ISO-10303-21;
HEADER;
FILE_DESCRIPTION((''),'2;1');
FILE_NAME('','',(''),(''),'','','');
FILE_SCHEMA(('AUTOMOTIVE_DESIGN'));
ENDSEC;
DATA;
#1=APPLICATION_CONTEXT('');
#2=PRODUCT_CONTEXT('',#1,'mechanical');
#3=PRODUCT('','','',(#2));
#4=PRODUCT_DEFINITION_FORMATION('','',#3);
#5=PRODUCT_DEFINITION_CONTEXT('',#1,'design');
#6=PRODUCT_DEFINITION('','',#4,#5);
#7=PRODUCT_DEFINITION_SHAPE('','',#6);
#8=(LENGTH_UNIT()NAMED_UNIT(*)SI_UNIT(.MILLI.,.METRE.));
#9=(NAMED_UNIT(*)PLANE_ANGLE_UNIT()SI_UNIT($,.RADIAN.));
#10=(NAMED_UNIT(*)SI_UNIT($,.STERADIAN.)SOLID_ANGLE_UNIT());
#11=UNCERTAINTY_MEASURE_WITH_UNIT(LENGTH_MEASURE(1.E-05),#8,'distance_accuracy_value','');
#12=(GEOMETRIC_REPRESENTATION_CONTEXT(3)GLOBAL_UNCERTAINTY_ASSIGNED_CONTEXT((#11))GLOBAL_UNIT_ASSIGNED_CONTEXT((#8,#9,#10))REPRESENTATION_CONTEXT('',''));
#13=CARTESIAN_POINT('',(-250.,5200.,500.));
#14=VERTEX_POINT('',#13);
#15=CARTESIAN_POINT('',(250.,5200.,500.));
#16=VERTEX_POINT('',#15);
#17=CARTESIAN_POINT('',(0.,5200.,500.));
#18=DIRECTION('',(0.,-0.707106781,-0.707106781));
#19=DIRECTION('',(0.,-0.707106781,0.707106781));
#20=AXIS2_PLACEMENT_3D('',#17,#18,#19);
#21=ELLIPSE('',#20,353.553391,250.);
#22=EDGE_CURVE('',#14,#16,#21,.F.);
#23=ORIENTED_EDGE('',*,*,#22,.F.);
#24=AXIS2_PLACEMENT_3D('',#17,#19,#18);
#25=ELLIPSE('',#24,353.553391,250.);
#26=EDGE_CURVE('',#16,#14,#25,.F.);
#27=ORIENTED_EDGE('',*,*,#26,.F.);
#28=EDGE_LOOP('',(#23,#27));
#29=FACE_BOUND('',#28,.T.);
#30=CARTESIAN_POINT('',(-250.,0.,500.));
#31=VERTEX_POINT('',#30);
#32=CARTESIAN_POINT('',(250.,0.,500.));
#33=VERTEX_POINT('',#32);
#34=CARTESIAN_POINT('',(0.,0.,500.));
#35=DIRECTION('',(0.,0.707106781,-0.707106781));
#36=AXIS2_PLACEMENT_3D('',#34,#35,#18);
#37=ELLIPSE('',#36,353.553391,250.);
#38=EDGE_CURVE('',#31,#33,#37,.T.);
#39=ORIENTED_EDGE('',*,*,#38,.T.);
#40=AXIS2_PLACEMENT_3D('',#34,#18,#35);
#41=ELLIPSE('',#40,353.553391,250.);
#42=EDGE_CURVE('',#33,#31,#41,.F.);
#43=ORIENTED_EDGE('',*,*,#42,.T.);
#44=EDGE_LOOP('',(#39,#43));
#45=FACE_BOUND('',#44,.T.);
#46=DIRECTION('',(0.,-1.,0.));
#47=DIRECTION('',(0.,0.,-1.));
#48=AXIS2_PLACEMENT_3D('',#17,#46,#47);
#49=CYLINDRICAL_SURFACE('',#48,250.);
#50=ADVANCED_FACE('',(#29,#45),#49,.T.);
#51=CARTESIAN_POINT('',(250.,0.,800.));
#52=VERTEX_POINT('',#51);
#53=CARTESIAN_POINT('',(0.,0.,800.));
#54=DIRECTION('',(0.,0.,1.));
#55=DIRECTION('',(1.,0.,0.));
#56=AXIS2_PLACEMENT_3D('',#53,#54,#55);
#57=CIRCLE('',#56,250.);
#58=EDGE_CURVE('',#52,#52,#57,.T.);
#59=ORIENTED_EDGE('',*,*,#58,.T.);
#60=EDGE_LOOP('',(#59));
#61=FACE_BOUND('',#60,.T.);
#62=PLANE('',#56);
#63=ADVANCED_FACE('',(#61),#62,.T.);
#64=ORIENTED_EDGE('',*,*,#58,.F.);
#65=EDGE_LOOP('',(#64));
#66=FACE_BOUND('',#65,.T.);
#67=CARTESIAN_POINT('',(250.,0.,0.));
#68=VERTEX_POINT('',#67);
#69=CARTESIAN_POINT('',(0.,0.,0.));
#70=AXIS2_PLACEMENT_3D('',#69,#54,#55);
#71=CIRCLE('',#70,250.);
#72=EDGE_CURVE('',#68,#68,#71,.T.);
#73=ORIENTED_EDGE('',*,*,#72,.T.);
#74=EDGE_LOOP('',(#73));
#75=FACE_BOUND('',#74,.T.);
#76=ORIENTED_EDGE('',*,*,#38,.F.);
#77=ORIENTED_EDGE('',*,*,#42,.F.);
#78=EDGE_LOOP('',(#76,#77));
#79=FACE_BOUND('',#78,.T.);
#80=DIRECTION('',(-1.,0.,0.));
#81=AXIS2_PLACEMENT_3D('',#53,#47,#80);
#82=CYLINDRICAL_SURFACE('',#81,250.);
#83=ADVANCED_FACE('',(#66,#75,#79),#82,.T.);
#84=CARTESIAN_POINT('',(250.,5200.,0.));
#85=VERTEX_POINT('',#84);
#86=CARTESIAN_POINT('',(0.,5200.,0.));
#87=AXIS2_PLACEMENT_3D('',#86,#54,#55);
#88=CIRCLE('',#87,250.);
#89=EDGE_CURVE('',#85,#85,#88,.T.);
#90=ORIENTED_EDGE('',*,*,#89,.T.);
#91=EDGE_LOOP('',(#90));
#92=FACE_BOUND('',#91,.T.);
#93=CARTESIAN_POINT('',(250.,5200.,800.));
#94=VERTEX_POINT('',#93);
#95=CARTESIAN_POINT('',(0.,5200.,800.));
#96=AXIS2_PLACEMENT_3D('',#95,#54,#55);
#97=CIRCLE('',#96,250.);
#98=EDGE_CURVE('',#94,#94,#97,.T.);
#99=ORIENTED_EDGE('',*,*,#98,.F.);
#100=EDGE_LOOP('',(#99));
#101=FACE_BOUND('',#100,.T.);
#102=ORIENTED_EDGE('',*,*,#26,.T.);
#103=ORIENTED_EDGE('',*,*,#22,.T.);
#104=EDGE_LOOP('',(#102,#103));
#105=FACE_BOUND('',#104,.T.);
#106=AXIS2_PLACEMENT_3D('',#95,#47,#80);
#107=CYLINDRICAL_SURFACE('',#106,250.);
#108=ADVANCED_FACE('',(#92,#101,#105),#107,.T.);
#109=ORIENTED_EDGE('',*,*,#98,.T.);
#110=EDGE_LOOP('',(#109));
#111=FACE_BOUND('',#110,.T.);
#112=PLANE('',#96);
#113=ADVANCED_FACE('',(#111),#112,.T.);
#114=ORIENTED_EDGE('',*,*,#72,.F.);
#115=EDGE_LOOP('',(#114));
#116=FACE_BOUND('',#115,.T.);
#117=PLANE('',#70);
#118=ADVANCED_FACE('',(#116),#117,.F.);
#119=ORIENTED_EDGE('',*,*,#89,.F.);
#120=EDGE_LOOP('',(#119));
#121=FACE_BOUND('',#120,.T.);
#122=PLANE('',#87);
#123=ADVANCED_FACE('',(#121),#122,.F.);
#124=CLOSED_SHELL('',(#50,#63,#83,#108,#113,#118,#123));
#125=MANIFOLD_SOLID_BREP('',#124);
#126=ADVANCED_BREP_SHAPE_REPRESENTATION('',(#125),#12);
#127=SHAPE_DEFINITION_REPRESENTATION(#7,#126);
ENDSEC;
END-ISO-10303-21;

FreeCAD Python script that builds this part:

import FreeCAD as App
import Part
import Sketcher

V = App.Vector
Q = App.Units.Quantity

doc = App.newDocument("Part")
params = doc.addObject("Spreadsheet::Sheet", "Params")
for row, (alias, value) in enumerate([
    ("sketch1_diameter", "500 mm"),
    ("pad1_length", "800 mm"),
    ("sketch2_diameter", "500 mm"),
    ("pad2_length", "5200 mm"),
    ("linearpattern_pitch", "5200 mm"),
], start=1):
    params.set(f"A{row}", alias)
    params.set(f"B{row}", "=" + value)
    params.setAlias(f"B{row}", alias)

body = doc.addObject("PartDesign::Body", "Body")

# Sketch on XY plane
sketch1 = body.newObject("Sketcher::SketchObject", "Sketch")
sketch1.AttachmentSupport = (doc.getObject("XY_Plane"), [""])
sketch1.MapMode = "FlatFace"
sketch1.addGeometry(Part.Circle(V(0, 0, 0), V(0, 0, 1), 250), False)
sketch1.addConstraint([
    Sketcher.Constraint("Coincident", 0, 3, -1, 1),
    Sketcher.Constraint("Diameter", 0, Q("500 mm")),
])
sketch1.setExpression("Constraints[1]", "Params.sketch1_diameter")
pad1 = body.newObject("PartDesign::Pad", "Pad")
pad1.Profile = sketch1
pad1.setExpression("Length", "Params.pad1_length")

# Sketch on XZ plane
sketch2 = body.newObject("Sketcher::SketchObject", "Sketch001")
sketch2.AttachmentSupport = (doc.getObject("XZ_Plane"), [""])
sketch2.MapMode = "FlatFace"
sketch2.addGeometry(Part.Circle(V(0, 500, 0), V(0, 0, 1), 250), False)
sketch2.addConstraint([
    Sketcher.Constraint("PointOnObject", 0, 3, -2),
    Sketcher.Constraint("Diameter", 0, Q("500 mm")),
    Sketcher.Constraint("DistanceY", -1, 1, 0, 3, Q("500 mm")),
])
sketch2.setExpression("Constraints[1]", "Params.sketch2_diameter")
pad2 = body.newObject("PartDesign::Pad", "Pad001")
pad2.Profile = sketch2
pad2.setExpression("Length", "Params.pad2_length")
pad2.Reversed = True
doc.recompute()

linearpattern = body.newObject("PartDesign::LinearPattern", "LinearPattern")
linearpattern.Originals = [pad1]
linearpattern.Direction = (doc.getObject("Y_Axis"), [""])
linearpattern.Mode = "offset"
linearpattern.setExpression("Offset", "Params.linearpattern_pitch")
linearpattern.Occurrences = 2
body.Tip = linearpattern

doc.recompute()
